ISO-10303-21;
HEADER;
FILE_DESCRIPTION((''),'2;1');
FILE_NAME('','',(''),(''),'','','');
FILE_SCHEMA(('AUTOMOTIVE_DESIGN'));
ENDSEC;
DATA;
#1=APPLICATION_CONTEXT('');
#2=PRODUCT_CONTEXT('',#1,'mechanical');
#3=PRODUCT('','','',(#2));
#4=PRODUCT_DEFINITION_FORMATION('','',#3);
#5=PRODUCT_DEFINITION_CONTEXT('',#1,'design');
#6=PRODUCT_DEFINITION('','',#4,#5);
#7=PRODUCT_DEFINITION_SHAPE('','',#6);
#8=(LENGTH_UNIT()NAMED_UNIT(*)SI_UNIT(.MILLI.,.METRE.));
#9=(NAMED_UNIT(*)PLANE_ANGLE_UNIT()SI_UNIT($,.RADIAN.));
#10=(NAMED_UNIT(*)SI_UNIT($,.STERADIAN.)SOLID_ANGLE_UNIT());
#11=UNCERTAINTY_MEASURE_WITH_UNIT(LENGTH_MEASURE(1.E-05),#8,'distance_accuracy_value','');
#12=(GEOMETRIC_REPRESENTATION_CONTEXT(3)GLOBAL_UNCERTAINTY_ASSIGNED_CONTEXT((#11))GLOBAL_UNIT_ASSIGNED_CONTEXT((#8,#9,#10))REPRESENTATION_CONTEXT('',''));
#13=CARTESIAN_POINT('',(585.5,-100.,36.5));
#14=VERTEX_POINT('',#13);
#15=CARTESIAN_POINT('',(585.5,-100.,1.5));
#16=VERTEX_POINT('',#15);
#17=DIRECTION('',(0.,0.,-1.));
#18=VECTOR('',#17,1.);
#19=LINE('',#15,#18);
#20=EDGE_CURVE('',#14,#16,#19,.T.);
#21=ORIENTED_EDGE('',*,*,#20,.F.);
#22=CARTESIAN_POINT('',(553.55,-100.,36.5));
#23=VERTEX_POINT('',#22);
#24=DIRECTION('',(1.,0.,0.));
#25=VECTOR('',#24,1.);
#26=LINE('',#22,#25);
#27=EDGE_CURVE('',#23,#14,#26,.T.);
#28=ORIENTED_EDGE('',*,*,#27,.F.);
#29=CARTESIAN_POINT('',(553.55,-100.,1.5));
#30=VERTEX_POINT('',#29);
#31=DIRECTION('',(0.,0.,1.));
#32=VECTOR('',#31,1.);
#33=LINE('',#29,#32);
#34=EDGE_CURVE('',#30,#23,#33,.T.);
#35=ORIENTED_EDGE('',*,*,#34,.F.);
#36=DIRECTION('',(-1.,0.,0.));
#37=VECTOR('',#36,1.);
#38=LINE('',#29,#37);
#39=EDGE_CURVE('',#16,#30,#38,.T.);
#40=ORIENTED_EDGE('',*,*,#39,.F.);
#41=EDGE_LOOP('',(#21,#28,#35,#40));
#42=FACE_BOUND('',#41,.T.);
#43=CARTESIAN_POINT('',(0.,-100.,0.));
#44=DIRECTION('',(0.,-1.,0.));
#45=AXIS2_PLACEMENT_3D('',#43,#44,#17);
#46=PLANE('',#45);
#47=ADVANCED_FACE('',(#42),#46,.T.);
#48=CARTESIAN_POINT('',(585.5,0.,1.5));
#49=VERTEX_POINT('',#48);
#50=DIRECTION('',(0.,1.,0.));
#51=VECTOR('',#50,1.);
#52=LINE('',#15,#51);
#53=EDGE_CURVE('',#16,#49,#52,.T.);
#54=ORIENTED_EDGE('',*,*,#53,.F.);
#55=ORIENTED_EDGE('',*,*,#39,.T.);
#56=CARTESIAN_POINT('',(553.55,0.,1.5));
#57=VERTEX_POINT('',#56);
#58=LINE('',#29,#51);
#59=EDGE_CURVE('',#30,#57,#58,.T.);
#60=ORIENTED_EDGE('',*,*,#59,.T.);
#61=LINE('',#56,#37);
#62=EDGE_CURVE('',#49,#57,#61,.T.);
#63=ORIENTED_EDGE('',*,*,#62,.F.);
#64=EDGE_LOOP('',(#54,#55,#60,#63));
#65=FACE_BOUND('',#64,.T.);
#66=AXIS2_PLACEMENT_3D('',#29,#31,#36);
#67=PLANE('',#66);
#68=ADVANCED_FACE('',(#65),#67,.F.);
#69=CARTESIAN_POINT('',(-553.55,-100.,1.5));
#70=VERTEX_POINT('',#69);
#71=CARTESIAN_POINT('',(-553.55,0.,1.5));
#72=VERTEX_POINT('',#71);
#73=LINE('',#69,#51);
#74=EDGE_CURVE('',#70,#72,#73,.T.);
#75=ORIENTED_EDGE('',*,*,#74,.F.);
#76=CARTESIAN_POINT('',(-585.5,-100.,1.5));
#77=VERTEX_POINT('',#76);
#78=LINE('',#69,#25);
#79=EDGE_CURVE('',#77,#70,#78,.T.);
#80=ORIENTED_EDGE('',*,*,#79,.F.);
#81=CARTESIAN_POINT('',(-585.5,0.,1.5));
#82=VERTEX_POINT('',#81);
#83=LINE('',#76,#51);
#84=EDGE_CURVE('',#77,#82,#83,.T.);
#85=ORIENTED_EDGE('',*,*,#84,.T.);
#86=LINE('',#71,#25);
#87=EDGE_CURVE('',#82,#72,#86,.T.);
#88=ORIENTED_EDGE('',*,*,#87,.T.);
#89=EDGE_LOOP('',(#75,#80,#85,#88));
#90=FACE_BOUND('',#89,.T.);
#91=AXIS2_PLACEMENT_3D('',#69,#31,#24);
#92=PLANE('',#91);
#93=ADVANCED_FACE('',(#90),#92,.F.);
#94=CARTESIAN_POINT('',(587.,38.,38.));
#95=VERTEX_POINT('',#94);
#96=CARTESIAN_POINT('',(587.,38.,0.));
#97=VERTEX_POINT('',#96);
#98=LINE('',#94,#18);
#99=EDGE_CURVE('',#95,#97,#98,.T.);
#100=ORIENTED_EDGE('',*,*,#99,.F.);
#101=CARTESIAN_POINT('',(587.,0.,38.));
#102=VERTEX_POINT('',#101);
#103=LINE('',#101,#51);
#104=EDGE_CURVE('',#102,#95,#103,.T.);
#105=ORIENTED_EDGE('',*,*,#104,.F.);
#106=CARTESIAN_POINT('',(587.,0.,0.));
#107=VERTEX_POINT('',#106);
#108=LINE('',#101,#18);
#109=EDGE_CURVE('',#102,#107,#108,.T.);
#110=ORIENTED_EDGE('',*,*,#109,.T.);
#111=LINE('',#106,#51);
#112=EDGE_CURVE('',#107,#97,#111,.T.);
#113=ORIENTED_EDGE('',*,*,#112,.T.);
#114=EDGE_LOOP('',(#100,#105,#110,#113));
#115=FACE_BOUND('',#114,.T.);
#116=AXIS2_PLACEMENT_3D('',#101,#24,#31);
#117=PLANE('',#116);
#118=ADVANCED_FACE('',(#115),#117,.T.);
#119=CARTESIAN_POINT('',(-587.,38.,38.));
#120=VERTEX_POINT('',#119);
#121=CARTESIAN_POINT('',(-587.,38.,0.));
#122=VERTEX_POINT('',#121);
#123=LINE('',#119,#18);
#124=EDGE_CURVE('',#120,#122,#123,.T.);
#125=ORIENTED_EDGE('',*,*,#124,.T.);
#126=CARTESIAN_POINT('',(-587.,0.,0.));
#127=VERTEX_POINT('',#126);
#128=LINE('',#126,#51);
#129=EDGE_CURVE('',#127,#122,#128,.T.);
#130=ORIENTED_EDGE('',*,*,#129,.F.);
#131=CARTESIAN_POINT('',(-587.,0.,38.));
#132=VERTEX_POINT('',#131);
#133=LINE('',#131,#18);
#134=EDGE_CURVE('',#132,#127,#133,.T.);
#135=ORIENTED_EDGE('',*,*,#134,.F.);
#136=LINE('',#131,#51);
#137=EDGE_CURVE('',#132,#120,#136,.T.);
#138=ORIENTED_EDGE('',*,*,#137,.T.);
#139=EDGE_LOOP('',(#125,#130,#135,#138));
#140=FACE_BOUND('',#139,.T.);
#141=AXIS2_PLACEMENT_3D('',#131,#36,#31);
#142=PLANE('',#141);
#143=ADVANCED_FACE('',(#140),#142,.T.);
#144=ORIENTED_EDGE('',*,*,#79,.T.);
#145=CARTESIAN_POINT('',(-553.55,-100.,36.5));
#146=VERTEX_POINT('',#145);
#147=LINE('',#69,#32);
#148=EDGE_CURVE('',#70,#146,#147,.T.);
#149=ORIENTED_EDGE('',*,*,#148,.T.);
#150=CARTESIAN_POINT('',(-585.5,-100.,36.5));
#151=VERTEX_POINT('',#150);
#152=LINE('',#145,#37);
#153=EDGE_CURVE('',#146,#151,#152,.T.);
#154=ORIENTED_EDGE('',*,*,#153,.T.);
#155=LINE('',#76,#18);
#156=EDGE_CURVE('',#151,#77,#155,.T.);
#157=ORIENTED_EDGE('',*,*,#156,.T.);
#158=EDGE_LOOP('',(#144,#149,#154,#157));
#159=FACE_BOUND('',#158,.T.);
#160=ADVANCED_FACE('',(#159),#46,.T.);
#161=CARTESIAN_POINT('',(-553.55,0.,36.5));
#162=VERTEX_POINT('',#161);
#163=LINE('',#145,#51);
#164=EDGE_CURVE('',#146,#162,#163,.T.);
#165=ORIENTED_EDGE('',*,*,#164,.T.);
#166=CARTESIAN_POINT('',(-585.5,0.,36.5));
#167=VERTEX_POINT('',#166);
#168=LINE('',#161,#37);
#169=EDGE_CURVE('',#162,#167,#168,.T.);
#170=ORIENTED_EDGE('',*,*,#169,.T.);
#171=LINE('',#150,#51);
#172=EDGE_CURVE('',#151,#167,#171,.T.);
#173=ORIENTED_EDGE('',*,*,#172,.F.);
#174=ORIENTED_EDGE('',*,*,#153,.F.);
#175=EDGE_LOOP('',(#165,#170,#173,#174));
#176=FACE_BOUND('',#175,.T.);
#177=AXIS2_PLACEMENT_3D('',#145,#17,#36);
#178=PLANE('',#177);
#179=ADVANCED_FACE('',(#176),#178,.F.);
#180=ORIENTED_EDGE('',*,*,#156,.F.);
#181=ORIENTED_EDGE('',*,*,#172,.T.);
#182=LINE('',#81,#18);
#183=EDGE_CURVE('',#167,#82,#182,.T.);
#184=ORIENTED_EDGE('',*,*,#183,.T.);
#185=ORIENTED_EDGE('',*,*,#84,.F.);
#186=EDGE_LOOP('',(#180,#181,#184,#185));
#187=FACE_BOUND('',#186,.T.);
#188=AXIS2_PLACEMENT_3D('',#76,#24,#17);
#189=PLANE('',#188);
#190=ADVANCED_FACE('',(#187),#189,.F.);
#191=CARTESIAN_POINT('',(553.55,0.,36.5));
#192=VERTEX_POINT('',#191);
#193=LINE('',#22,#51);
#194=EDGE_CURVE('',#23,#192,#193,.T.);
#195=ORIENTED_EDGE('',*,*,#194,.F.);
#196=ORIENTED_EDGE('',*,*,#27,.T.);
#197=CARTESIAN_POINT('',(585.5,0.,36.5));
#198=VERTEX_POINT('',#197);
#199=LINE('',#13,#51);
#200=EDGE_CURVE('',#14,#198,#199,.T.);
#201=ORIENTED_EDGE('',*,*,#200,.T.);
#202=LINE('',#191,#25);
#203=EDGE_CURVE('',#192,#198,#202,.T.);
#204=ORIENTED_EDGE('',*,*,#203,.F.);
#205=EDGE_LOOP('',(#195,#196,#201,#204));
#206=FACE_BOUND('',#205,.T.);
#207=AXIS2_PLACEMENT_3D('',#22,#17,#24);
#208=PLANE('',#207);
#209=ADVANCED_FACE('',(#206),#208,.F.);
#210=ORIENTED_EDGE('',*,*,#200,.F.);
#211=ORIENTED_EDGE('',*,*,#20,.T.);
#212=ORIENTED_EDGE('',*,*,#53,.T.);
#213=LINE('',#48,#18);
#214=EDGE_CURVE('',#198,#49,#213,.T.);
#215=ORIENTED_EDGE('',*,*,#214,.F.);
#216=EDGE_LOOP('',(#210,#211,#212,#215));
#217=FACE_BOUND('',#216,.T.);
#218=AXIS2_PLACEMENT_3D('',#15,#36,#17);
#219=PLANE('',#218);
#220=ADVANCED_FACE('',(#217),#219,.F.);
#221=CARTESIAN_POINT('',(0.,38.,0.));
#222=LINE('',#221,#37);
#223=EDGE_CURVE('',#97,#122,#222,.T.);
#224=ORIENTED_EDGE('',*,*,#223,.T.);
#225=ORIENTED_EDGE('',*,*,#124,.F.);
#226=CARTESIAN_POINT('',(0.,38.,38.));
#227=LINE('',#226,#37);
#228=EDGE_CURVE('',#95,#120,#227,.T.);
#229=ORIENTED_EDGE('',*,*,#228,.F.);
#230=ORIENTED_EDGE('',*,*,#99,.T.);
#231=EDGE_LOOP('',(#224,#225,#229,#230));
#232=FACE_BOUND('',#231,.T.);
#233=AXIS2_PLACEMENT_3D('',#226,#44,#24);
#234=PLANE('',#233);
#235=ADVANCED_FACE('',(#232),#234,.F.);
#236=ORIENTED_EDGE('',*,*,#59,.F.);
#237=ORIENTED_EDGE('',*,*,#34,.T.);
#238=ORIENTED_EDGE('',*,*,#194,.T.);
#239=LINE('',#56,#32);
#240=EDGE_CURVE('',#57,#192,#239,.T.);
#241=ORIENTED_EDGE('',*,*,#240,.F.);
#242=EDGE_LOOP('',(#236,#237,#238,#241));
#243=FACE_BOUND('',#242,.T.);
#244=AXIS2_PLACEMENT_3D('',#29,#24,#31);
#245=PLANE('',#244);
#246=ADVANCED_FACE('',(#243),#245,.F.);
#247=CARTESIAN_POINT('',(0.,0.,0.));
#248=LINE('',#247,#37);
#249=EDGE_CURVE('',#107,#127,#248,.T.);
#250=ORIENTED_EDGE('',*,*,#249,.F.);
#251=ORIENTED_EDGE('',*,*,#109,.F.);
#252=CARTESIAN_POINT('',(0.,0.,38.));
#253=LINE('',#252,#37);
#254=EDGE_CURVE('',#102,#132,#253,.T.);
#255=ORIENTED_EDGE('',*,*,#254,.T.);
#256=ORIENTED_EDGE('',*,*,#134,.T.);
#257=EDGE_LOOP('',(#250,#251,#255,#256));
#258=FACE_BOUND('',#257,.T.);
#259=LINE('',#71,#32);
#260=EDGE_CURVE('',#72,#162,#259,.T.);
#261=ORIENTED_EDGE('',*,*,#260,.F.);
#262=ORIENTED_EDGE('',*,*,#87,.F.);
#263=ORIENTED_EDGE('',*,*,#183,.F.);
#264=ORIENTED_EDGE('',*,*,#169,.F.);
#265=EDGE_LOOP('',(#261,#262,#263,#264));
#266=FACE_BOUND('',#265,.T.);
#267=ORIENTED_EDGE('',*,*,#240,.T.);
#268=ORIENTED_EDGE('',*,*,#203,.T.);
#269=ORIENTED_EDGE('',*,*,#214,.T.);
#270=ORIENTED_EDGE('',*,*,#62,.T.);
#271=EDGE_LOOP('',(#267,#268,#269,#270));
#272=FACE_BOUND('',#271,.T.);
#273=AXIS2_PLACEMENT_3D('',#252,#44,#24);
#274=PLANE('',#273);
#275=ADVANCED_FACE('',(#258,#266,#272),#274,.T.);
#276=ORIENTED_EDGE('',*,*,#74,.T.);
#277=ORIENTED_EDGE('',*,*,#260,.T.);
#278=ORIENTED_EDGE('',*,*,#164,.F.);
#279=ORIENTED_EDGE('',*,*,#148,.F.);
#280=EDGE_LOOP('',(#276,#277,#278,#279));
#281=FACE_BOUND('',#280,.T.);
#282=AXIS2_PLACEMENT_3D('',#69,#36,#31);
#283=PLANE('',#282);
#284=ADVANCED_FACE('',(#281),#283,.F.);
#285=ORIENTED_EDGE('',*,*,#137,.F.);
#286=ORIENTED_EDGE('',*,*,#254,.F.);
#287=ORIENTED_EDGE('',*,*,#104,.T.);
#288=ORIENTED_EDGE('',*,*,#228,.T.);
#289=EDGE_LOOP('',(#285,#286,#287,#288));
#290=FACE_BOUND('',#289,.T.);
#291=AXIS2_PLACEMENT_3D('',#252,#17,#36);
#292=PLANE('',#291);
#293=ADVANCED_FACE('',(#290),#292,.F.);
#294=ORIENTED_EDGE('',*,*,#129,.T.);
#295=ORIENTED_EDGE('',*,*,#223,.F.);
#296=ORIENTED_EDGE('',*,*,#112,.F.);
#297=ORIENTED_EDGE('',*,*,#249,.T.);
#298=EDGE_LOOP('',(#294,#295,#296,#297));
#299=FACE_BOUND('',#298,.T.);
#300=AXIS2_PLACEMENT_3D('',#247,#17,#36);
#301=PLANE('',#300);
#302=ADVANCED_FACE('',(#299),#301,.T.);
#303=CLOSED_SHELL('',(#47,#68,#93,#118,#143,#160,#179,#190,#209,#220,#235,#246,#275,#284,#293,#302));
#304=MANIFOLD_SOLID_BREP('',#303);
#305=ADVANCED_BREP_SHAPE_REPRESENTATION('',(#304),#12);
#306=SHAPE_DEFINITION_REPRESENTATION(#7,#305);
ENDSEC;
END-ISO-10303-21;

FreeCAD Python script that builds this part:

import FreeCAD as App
import Part
import Sketcher
Q = App.Units.Quantity


def add_polygon(sketch, points):
    """Adds a closed chain of lines whose ends are joined by coincident constraints."""
    first, n = sketch.GeometryCount, len(points)
    for a, b in zip(points, points[1:] + points[:1]):
        sketch.addGeometry(Part.LineSegment(App.Vector(*a, 0), App.Vector(*b, 0)), False)
    for i in range(n):
        sketch.addConstraint(Sketcher.Constraint("Coincident", first + i, 2, first + (i + 1) % n, 1))

doc = App.newDocument("Part")
params = doc.addObject("Spreadsheet::Sheet", "Params")
for row, (alias, value) in enumerate([
    ("sketch1_width", "587 mm"),
    ("sketch1_height", "38 mm"),
    ("pad1_length", "38 mm"),
    ("sketch2_height", "35 mm"),
    ("sketch2_width", "31.95 mm"),
    ("pad2_length", "100 mm"),
], start=1):
    params.set(f"A{row}", alias)
    params.set(f"B{row}", "=" + value)
    params.setAlias(f"B{row}", alias)

body = doc.addObject("PartDesign::Body", "Body")

# Sketch on XY plane
sketch1 = body.newObject("Sketcher::SketchObject", "Sketch")
sketch1.AttachmentSupport = (doc.getObject("XY_Plane"), [""])
sketch1.MapMode = "FlatFace"
add_polygon(sketch1, [(-587, 38), (-587, 0), (0, 0), (0, 38)])  # lines 0-3
sketch1.addConstraint([
    Sketcher.Constraint("Vertical", 0),
    Sketcher.Constraint("Horizontal", 1),
    Sketcher.Constraint("Vertical", 2),
    Sketcher.Constraint("Horizontal", 3),
    Sketcher.Constraint("Coincident", 1, 2, -1, 1),
    Sketcher.Constraint("DistanceX", 1, 1, 1, 2, Q("587 mm")),
    Sketcher.Constraint("DistanceY", 0, 2, 0, 1, Q("38 mm")),
])
sketch1.setExpression("Constraints[9]", "Params.sketch1_width")
sketch1.setExpression("Constraints[10]", "Params.sketch1_height")
pad1 = body.newObject("PartDesign::Pad", "Pad")
pad1.Profile = sketch1
pad1.setExpression("Length", "Params.pad1_length")

# Sketch on XZ plane
sketch2 = body.newObject("Sketcher::SketchObject", "Sketch001")
sketch2.AttachmentSupport = (doc.getObject("XZ_Plane"), [""])
sketch2.MapMode = "FlatFace"
add_polygon(sketch2, [(-586, 36), (-586, 2), (-554, 2), (-554, 36)])  # lines 0-3
sketch2.addConstraint([
    Sketcher.Constraint("Vertical", 0),
    Sketcher.Constraint("Horizontal", 1),
    Sketcher.Constraint("Vertical", 2),
    Sketcher.Constraint("Horizontal", 3),
    Sketcher.Constraint("DistanceY", 0, 2, 0, 1, Q("35 mm")),
    Sketcher.Constraint("DistanceX", 1, 1, 1, 2, Q("31.95 mm")),
    Sketcher.Constraint("DistanceX", 0, 2, -1, 1, Q("585.5 mm")),
    Sketcher.Constraint("DistanceY", -1, 1, 0, 2, Q("1.5 mm")),
])
sketch2.setExpression("Constraints[8]", "Params.sketch2_height")
sketch2.setExpression("Constraints[9]", "Params.sketch2_width")
pad2 = body.newObject("PartDesign::Pad", "Pad001")
pad2.Profile = sketch2
pad2.setExpression("Length", "Params.pad2_length")
body2 = doc.addObject("PartDesign::Body", "Body001")
doc.recompute()

body2.BaseFeature = body
doc.recompute()

mirroring = doc.addObject("Part::Mirroring", "Mirroring")
mirroring.Source = body
mirroring.Base = App.Vector(0, 38, 38)
mirroring.Normal = App.Vector(1, 0, 0)
body3 = doc.addObject("PartDesign::Body", "Body002")
body3.BaseFeature = mirroring
boolean = body2.newObject("PartDesign::Boolean", "Boolean")
boolean.Type = "Fuse"
boolean.addObjects([body3])
doc.recompute()
mirroring.Visibility = False

doc.recompute()
